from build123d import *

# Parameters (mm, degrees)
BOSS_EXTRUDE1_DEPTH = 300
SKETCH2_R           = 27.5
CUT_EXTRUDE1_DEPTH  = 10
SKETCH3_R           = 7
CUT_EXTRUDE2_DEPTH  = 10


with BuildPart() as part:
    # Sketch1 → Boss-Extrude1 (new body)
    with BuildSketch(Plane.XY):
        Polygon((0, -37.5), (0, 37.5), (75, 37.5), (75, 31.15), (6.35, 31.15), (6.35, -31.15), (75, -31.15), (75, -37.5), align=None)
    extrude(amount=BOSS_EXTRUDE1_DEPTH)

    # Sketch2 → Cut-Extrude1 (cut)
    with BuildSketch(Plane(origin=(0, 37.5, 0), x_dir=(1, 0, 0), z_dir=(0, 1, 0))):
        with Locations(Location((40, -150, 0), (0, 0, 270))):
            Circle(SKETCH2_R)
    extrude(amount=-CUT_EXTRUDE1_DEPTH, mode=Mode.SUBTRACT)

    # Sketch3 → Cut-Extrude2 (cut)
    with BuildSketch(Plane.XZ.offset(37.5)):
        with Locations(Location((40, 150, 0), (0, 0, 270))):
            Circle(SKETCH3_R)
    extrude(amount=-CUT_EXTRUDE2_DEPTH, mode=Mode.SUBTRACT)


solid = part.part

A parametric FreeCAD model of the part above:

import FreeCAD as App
import Part
import Sketcher
Q = App.Units.Quantity


def add_polygon(sketch, points):
    """Adds a closed chain of lines whose ends are joined by coincident constraints."""
    first, n = sketch.GeometryCount, len(points)
    for a, b in zip(points, points[1:] + points[:1]):
        sketch.addGeometry(Part.LineSegment(App.Vector(*a, 0), App.Vector(*b, 0)), False)
    for i in range(n):
        sketch.addConstraint(Sketcher.Constraint("Coincident", first + i, 2, first + (i + 1) % n, 1))

doc = App.newDocument("Part")
params = doc.addObject("Spreadsheet::Sheet", "Params")
for row, (alias, value) in enumerate([
    ("sketch1_width", "75 mm"),
    ("sketch1_height", "62.3 mm"),
    ("sketch1_width2", "68.65 mm"),
    ("pad1_length", "300 mm"),
    ("sketch2_diameter", "55 mm"),
    ("pocket1_length", "10 mm"),
    ("sketch3_diameter", "14 mm"),
    ("pocket2_length", "10 mm"),
], start=1):
    params.set(f"A{row}", alias)
    params.set(f"B{row}", "=" + value)
    params.setAlias(f"B{row}", alias)

body = doc.addObject("PartDesign::Body", "Body")

# Sketch on XY plane
sketch1 = body.newObject("Sketcher::SketchObject", "Sketch")
sketch1.AttachmentSupport = (doc.getObject("XY_Plane"), [""])
sketch1.MapMode = "FlatFace"
add_polygon(sketch1, [(0, 38), (0, -38), (75, -38), (75, -31), (6, -31), (6, 31), (75, 31), (75, 38)])  # lines 0-7
sketch1.addConstraint([
    Sketcher.Constraint("Vertical", 0),
    Sketcher.Constraint("Horizontal", 1),
    Sketcher.Constraint("Vertical", 2),
    Sketcher.Constraint("Horizontal", 3),
    Sketcher.Constraint("Vertical", 4),
    Sketcher.Constraint("Horizontal", 5),
    Sketcher.Constraint("Vertical", 6),
    Sketcher.Constraint("Horizontal", 7),
    Sketcher.Constraint("Symmetric", 0, 2, 7, 2, -1, 1),
    Sketcher.Constraint("Symmetric", 2, 2, 5, 2, -1),
    Sketcher.Constraint("Equal", 7, 0),
    Sketcher.Constraint("DistanceX", 1, 1, 1, 2, Q("75 mm")),
    Sketcher.Constraint("DistanceY", 4, 1, 4, 2, Q("62.3 mm")),
    Sketcher.Constraint("DistanceX", 3, 2, 3, 1, Q("68.65 mm")),
])
sketch1.setExpression("Constraints[19]", "Params.sketch1_width")
sketch1.setExpression("Constraints[20]", "Params.sketch1_height")
sketch1.setExpression("Constraints[21]", "Params.sketch1_width2")
pad1 = body.newObject("PartDesign::Pad", "Pad")
pad1.Profile = sketch1
pad1.setExpression("Length", "Params.pad1_length")

# Sketch on XZ plane
sketch2 = body.newObject("Sketcher::SketchObject", "Sketch001")
sketch2.AttachmentSupport = (doc.getObject("XZ_Plane"), [""])
sketch2.MapMode = "FlatFace"
sketch2.AttachmentOffset = App.Placement(App.Vector(0, 0, -37.5), App.Rotation())
sketch2.addGeometry(Part.Circle(App.Vector(40, 150, 0), App.Vector(0, 0, 1), 28), False)
sketch2.addConstraint([
    Sketcher.Constraint("Diameter", 0, Q("55 mm")),
    Sketcher.Constraint("DistanceX", -1, 1, 0, 3, Q("40 mm")),
    Sketcher.Constraint("DistanceY", -1, 1, 0, 3, Q("150 mm")),
])
sketch2.setExpression("Constraints[0]", "Params.sketch2_diameter")
pocket1 = body.newObject("PartDesign::Pocket", "Pocket")
pocket1.Profile = sketch2
pocket1.setExpression("Length", "Params.pocket1_length")
pocket1.Reversed = True

# Sketch on XZ plane
sketch3 = body.newObject("Sketcher::SketchObject", "Sketch002")
sketch3.AttachmentSupport = (doc.getObject("XZ_Plane"), [""])
sketch3.MapMode = "FlatFace"
sketch3.AttachmentOffset = App.Placement(App.Vector(0, 0, 37.5), App.Rotation())
sketch3.addGeometry(Part.Circle(App.Vector(40, 150, 0), App.Vector(0, 0, 1), 7), False)
sketch3.addConstraint([
    Sketcher.Constraint("Diameter", 0, Q("14 mm")),
    Sketcher.Constraint("DistanceX", -1, 1, 0, 3, Q("40 mm")),
    Sketcher.Constraint("DistanceY", -1, 1, 0, 3, Q("150 mm")),
])
sketch3.setExpression("Constraints[0]", "Params.sketch3_diameter")
pocket2 = body.newObject("PartDesign::Pocket", "Pocket001")
pocket2.Profile = sketch3
pocket2.setExpression("Length", "Params.pocket2_length")

doc.recompute()
